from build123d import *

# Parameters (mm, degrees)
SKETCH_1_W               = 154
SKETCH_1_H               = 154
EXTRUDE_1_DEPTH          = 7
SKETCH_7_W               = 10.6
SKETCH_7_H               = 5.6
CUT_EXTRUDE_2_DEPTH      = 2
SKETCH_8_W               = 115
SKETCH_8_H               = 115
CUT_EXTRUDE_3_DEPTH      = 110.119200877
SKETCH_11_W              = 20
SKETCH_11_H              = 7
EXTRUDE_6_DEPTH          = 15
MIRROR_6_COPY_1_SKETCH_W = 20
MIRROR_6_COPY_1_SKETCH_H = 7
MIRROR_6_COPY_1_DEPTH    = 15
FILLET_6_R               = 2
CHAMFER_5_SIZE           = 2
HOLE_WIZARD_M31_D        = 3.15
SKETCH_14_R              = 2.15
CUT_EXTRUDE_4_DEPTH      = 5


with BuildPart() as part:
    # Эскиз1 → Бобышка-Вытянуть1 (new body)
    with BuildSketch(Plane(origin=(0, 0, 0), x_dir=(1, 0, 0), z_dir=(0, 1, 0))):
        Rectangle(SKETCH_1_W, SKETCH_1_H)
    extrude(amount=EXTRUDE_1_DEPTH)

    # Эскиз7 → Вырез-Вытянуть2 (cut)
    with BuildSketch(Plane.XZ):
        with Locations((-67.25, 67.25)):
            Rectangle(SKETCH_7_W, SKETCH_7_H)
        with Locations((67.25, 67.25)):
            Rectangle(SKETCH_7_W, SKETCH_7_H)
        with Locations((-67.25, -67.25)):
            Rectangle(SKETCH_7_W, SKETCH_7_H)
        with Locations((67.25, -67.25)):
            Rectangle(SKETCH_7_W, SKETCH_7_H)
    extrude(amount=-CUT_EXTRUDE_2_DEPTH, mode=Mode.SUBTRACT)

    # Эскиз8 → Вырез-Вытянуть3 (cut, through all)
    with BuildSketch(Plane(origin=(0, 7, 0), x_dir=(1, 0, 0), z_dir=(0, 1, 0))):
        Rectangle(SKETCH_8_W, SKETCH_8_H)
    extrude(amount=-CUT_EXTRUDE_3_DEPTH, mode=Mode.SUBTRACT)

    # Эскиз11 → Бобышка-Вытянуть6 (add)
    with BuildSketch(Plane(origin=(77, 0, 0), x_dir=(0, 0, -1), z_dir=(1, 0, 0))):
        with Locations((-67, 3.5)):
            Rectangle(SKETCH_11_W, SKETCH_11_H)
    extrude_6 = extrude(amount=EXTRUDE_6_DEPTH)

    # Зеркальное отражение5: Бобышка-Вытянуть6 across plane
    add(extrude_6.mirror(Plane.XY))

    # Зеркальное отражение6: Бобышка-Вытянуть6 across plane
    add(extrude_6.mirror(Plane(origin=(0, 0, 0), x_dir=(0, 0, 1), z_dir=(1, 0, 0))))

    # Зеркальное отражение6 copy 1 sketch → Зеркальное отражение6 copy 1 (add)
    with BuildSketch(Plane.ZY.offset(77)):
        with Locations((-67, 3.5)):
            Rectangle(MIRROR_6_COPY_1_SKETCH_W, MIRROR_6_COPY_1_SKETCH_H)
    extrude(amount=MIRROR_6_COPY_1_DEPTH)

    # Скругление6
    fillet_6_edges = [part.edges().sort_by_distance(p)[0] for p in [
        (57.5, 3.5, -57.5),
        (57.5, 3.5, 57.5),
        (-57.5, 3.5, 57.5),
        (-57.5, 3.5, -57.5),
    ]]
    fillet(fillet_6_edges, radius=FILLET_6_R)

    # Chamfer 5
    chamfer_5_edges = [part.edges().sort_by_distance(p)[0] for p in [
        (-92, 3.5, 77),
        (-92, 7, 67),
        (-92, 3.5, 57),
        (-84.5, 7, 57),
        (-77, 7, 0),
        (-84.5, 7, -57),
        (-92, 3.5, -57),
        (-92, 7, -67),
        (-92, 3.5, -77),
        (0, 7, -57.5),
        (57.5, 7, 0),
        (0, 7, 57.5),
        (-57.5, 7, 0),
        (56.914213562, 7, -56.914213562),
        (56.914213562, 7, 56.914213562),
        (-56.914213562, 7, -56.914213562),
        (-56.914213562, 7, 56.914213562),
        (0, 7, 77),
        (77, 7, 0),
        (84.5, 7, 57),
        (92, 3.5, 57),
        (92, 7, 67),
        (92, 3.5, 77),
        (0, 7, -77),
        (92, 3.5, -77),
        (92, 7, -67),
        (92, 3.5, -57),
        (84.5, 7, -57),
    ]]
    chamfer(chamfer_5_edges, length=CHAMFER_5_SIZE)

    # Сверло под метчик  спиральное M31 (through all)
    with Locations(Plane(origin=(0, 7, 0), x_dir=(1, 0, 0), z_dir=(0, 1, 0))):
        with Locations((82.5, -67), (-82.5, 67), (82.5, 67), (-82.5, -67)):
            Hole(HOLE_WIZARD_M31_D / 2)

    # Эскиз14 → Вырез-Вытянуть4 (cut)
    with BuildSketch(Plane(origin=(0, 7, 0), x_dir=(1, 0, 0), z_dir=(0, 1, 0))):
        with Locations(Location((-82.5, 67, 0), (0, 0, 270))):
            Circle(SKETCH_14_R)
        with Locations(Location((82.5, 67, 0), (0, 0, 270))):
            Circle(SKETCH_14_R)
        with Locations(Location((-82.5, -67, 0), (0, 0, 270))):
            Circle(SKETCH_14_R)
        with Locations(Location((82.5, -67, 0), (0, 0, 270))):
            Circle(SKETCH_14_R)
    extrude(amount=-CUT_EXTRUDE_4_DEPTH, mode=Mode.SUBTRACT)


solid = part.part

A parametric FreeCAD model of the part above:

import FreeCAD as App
import Part
import Sketcher

V = App.Vector


def edges_at(feature, points):
    """Names of the edges that pass closest to the given points."""
    edges = feature.Shape.Edges
    near = lambda p: min(range(len(edges)), key=lambda i: edges[i].distToShape(Part.Vertex(*p))[0])
    return sorted({f"Edge{near(p) + 1}" for p in points})

doc = App.newDocument("Part")
body = doc.addObject("PartDesign::Body", "Body")

sketch1 = body.newObject("Sketcher::SketchObject", "Sketch")
sketch1.AttachmentSupport = (doc.getObject("XZ_Plane"), [""])
sketch1.MapMode = "FlatFace"
sketch1.addGeometry(Part.LineSegment(V(-77, -77, 0), V(-77, 77, 0)), False)
sketch1.addGeometry(Part.LineSegment(V(-77, 77, 0), V(77, 77, 0)), False)
sketch1.addGeometry(Part.LineSegment(V(77, 77, 0), V(77, -77, 0)), False)
sketch1.addGeometry(Part.LineSegment(V(77, -77, 0), V(-77, -77, 0)), False)
sketch1.addConstraint(Sketcher.Constraint("Coincident", 0, 2, 1, 1))
sketch1.addConstraint(Sketcher.Constraint("Coincident", 1, 2, 2, 1))
sketch1.addConstraint(Sketcher.Constraint("Coincident", 2, 2, 3, 1))
sketch1.addConstraint(Sketcher.Constraint("Coincident", 3, 2, 0, 1))
sketch1.addConstraint(Sketcher.Constraint("Vertical", 0))
sketch1.addConstraint(Sketcher.Constraint("Horizontal", 1))
sketch1.addConstraint(Sketcher.Constraint("Vertical", 2))
sketch1.addConstraint(Sketcher.Constraint("Horizontal", 3))
sketch1.addConstraint(Sketcher.Constraint("Symmetric", 0, 2, 2, 2, -1, 1))
sketch1.addConstraint(Sketcher.Constraint("Equal", 3, 0))
sketch1.addConstraint(Sketcher.Constraint("DistanceX", 1, 1, 1, 2, 154.0))
pad1 = body.newObject("PartDesign::Pad", "Pad")
pad1.Profile = sketch1
pad1.Length = 7
pad1.Reversed = True

sketch2 = body.newObject("Sketcher::SketchObject", "Sketch001")
sketch2.AttachmentSupport = (doc.getObject("XZ_Plane"), [""])
sketch2.MapMode = "FlatFace"
sketch2.addGeometry(Part.LineSegment(V(-73, 70, 0), V(-73, 64, 0)), False)
sketch2.addGeometry(Part.LineSegment(V(-73, 64, 0), V(-62, 64, 0)), False)
sketch2.addGeometry(Part.LineSegment(V(-62, 64, 0), V(-62, 70, 0)), False)
sketch2.addGeometry(Part.LineSegment(V(-62, 70, 0), V(-73, 70, 0)), False)
sketch2.addGeometry(Part.LineSegment(V(62, 70, 0), V(62, 64, 0)), False)
sketch2.addGeometry(Part.LineSegment(V(62, 64, 0), V(73, 64, 0)), False)
sketch2.addGeometry(Part.LineSegment(V(73, 64, 0), V(73, 70, 0)), False)
sketch2.addGeometry(Part.LineSegment(V(73, 70, 0), V(62, 70, 0)), False)
sketch2.addGeometry(Part.LineSegment(V(-73, -64, 0), V(-73, -70, 0)), False)
sketch2.addGeometry(Part.LineSegment(V(-73, -70, 0), V(-62, -70, 0)), False)
sketch2.addGeometry(Part.LineSegment(V(-62, -70, 0), V(-62, -64, 0)), False)
sketch2.addGeometry(Part.LineSegment(V(-62, -64, 0), V(-73, -64, 0)), False)
sketch2.addGeometry(Part.LineSegment(V(62, -64, 0), V(62, -70, 0)), False)
sketch2.addGeometry(Part.LineSegment(V(62, -70, 0), V(73, -70, 0)), False)
sketch2.addGeometry(Part.LineSegment(V(73, -70, 0), V(73, -64, 0)), False)
sketch2.addGeometry(Part.LineSegment(V(73, -64, 0), V(62, -64, 0)), False)
sketch2.addConstraint(Sketcher.Constraint("Coincident", 0, 2, 1, 1))
sketch2.addConstraint(Sketcher.Constraint("Coincident", 1, 2, 2, 1))
sketch2.addConstraint(Sketcher.Constraint("Coincident", 2, 2, 3, 1))
sketch2.addConstraint(Sketcher.Constraint("Coincident", 3, 2, 0, 1))
sketch2.addConstraint(Sketcher.Constraint("Coincident", 4, 2, 5, 1))
sketch2.addConstraint(Sketcher.Constraint("Coincident", 5, 2, 6, 1))
sketch2.addConstraint(Sketcher.Constraint("Coincident", 6, 2, 7, 1))
sketch2.addConstraint(Sketcher.Constraint("Coincident", 7, 2, 4, 1))
sketch2.addConstraint(Sketcher.Constraint("Coincident", 8, 2, 9, 1))
sketch2.addConstraint(Sketcher.Constraint("Coincident", 9, 2, 10, 1))
sketch2.addConstraint(Sketcher.Constraint("Coincident", 10, 2, 11, 1))
sketch2.addConstraint(Sketcher.Constraint("Coincident", 11, 2, 8, 1))
sketch2.addConstraint(Sketcher.Constraint("Coincident", 12, 2, 13, 1))
sketch2.addConstraint(Sketcher.Constraint("Coincident", 13, 2, 14, 1))
sketch2.addConstraint(Sketcher.Constraint("Coincident", 14, 2, 15, 1))
sketch2.addConstraint(Sketcher.Constraint("Coincident", 15, 2, 12, 1))
sketch2.addConstraint(Sketcher.Constraint("Vertical", 0))
sketch2.addConstraint(Sketcher.Constraint("Horizontal", 1))
sketch2.addConstraint(Sketcher.Constraint("Vertical", 2))
sketch2.addConstraint(Sketcher.Constraint("Horizontal", 3))
sketch2.addConstraint(Sketcher.Constraint("Vertical", 4))
sketch2.addConstraint(Sketcher.Constraint("Horizontal", 5))
sketch2.addConstraint(Sketcher.Constraint("Vertical", 6))
sketch2.addConstraint(Sketcher.Constraint("Horizontal", 7))
sketch2.addConstraint(Sketcher.Constraint("Vertical", 8))
sketch2.addConstraint(Sketcher.Constraint("Horizontal", 9))
sketch2.addConstraint(Sketcher.Constraint("Vertical", 10))
sketch2.addConstraint(Sketcher.Constraint("Horizontal", 11))
sketch2.addConstraint(Sketcher.Constraint("Vertical", 12))
sketch2.addConstraint(Sketcher.Constraint("Horizontal", 13))
sketch2.addConstraint(Sketcher.Constraint("Vertical", 14))
sketch2.addConstraint(Sketcher.Constraint("Horizontal", 15))
sketch2.addConstraint(Sketcher.Constraint("Symmetric", 6, 2, 8, 2, -1, 1))
sketch2.addConstraint(Sketcher.Constraint("Symmetric", 4, 2, 10, 2, -1, 1))
sketch2.addConstraint(Sketcher.Constraint("Symmetric", 2, 2, 12, 2, -1, 1))
sketch2.addConstraint(Sketcher.Constraint("Symmetric", 0, 2, 14, 2, -1, 1))
sketch2.addConstraint(Sketcher.Constraint("Symmetric", 1, 2, 4, 2, -2))
sketch2.addConstraint(Sketcher.Constraint("Symmetric", 3, 2, 6, 2, -2))
sketch2.addConstraint(Sketcher.Constraint("DistanceX", 1, 1, 1, 2, 10.6))
sketch2.addConstraint(Sketcher.Constraint("DistanceY", 0, 2, 0, 1, 5.6))
sketch2.addConstraint(Sketcher.Constraint("DistanceX", 1, 2, 4, 2, 123.9))
sketch2.addConstraint(Sketcher.Constraint("DistanceY", 8, 2, 0, 2, 134.5))
pocket1 = body.newObject("PartDesign::Pocket", "Pocket")
pocket1.Profile = sketch2
pocket1.Length = 2

sketch3 = body.newObject("Sketcher::SketchObject", "Sketch002")
sketch3.AttachmentSupport = (doc.getObject("XZ_Plane"), [""])
sketch3.MapMode = "FlatFace"
sketch3.AttachmentOffset = App.Placement(V(0, 0, -7), App.Rotation())
sketch3.addGeometry(Part.LineSegment(V(-58, -58, 0), V(-58, 58, 0)), False)
sketch3.addGeometry(Part.LineSegment(V(-58, 58, 0), V(58, 58, 0)), False)
sketch3.addGeometry(Part.LineSegment(V(58, 58, 0), V(58, -58, 0)), False)
sketch3.addGeometry(Part.LineSegment(V(58, -58, 0), V(-58, -58, 0)), False)
sketch3.addConstraint(Sketcher.Constraint("Coincident", 0, 2, 1, 1))
sketch3.addConstraint(Sketcher.Constraint("Coincident", 1, 2, 2, 1))
sketch3.addConstraint(Sketcher.Constraint("Coincident", 2, 2, 3, 1))
sketch3.addConstraint(Sketcher.Constraint("Coincident", 3, 2, 0, 1))
sketch3.addConstraint(Sketcher.Constraint("Vertical", 0))
sketch3.addConstraint(Sketcher.Constraint("Horizontal", 1))
sketch3.addConstraint(Sketcher.Constraint("Vertical", 2))
sketch3.addConstraint(Sketcher.Constraint("Horizontal", 3))
sketch3.addConstraint(Sketcher.Constraint("Symmetric", 0, 2, 2, 2, -1, 1))
sketch3.addConstraint(Sketcher.Constraint("Equal", 3, 0))
sketch3.addConstraint(Sketcher.Constraint("DistanceX", 1, 1, 1, 2, 115.0))
pocket2 = body.newObject("PartDesign::Pocket", "Pocket001")
pocket2.Profile = sketch3
pocket2.Type = "ThroughAll"
pocket2.Reversed = True

sketch4 = body.newObject("Sketcher::SketchObject", "Sketch003")
sketch4.AttachmentSupport = (doc.getObject("YZ_Plane"), [""])
sketch4.MapMode = "FlatFace"
sketch4.AttachmentOffset = App.Placement(V(0, 0, 77), App.Rotation())
sketch4.addGeometry(Part.LineSegment(V(7, 77, 0), V(0, 77, 0)), False)
sketch4.addGeometry(Part.LineSegment(V(0, 77, 0), V(0, 57, 0)), False)
sketch4.addGeometry(Part.LineSegment(V(0, 57, 0), V(7, 57, 0)), False)
sketch4.addGeometry(Part.LineSegment(V(7, 57, 0), V(7, 77, 0)), False)
sketch4.addConstraint(Sketcher.Constraint("Coincident", 0, 2, 1, 1))
sketch4.addConstraint(Sketcher.Constraint("Coincident", 1, 2, 2, 1))
sketch4.addConstraint(Sketcher.Constraint("Coincident", 2, 2, 3, 1))
sketch4.addConstraint(Sketcher.Constraint("Coincident", 3, 2, 0, 1))
sketch4.addConstraint(Sketcher.Constraint("Horizontal", 0))
sketch4.addConstraint(Sketcher.Constraint("Vertical", 1))
sketch4.addConstraint(Sketcher.Constraint("Horizontal", 2))
sketch4.addConstraint(Sketcher.Constraint("Vertical", 3))
sketch4.addConstraint(Sketcher.Constraint("PointOnObject", 0, 2, -2))
sketch4.addConstraint(Sketcher.Constraint("DistanceX", 0, 2, 0, 1, 7.0))
sketch4.addConstraint(Sketcher.Constraint("DistanceY", 1, 2, 1, 1, 20.0))
sketch4.addConstraint(Sketcher.Constraint("DistanceY", -1, 1, 0, 2, 77.0))
pad2 = body.newObject("PartDesign::Pad", "Pad001")
pad2.Profile = sketch4
pad2.Length = 15
doc.recompute()

mirrored = body.newObject("PartDesign::Mirrored", "Mirrored")
mirrored.Originals = [pad2]
mirrored.MirrorPlane = (doc.getObject("XY_Plane"), [""])
body.Tip = mirrored
doc.recompute()

mirrored2 = body.newObject("PartDesign::Mirrored", "Mirrored001")
mirrored2.Originals = [pad2]
mirrored2.MirrorPlane = (doc.getObject("YZ_Plane"), [""])
body.Tip = mirrored2

sketch5 = body.newObject("Sketcher::SketchObject", "Sketch004")
sketch5.AttachmentSupport = (doc.getObject("YZ_Plane"), [""])
sketch5.MapMode = "FlatFace"
sketch5.AttachmentOffset = App.Placement(V(0, 0, -77), App.Rotation())
sketch5.addGeometry(Part.LineSegment(V(7, -77, 0), V(0, -77, 0)), False)
sketch5.addGeometry(Part.LineSegment(V(0, -77, 0), V(0, -57, 0)), False)
sketch5.addGeometry(Part.LineSegment(V(0, -57, 0), V(7, -57, 0)), False)
sketch5.addGeometry(Part.LineSegment(V(7, -57, 0), V(7, -77, 0)), False)
sketch5.addConstraint(Sketcher.Constraint("Coincident", 0, 2, 1, 1))
sketch5.addConstraint(Sketcher.Constraint("Coincident", 1, 2, 2, 1))
sketch5.addConstraint(Sketcher.Constraint("Coincident", 2, 2, 3, 1))
sketch5.addConstraint(Sketcher.Constraint("Coincident", 3, 2, 0, 1))
sketch5.addConstraint(Sketcher.Constraint("Horizontal", 0))
sketch5.addConstraint(Sketcher.Constraint("Vertical", 1))
sketch5.addConstraint(Sketcher.Constraint("Horizontal", 2))
sketch5.addConstraint(Sketcher.Constraint("Vertical", 3))
sketch5.addConstraint(Sketcher.Constraint("PointOnObject", 0, 2, -2))
sketch5.addConstraint(Sketcher.Constraint("DistanceX", 0, 2, 0, 1, 7.0))
sketch5.addConstraint(Sketcher.Constraint("DistanceY", 1, 1, 1, 2, 20.0))
sketch5.addConstraint(Sketcher.Constraint("DistanceY", 0, 2, -1, 1, 77.0))
pad3 = body.newObject("PartDesign::Pad", "Pad002")
pad3.Profile = sketch5
pad3.Length = 15
pad3.Reversed = True
doc.recompute()

fillet = body.newObject("PartDesign::Fillet", "Fillet")
fillet.Base = (pad3, edges_at(pad3, [
    (57.5, 3.5, -57.5),
    (57.5, 3.5, 57.5),
    (-57.5, 3.5, 57.5),
    (-57.5, 3.5, -57.5),
]))
fillet.Radius = 2
doc.recompute()

chamfer = body.newObject("PartDesign::Chamfer", "Chamfer")
chamfer.Base = (fillet, edges_at(fillet, [
    (-92, 3.5, 77),
    (-92, 7, 67),
    (-92, 3.5, 57),
    (-84.5, 7, 57),
    (-77, 7, 0),
    (-84.5, 7, -57),
    (-92, 3.5, -57),
    (-92, 7, -67),
    (-92, 3.5, -77),
    (0, 7, -57.5),
    (57.5, 7, 0),
    (0, 7, 57.5),
    (-57.5, 7, 0),
    (56.914, 7, -56.914),
    (56.914, 7, 56.914),
    (-56.914, 7, -56.914),
    (-56.914, 7, 56.914),
    (0, 7, 77),
    (77, 7, 0),
    (84.5, 7, 57),
    (92, 3.5, 57),
    (92, 7, 67),
    (92, 3.5, 77),
    (0, 7, -77),
    (92, 3.5, -77),
    (92, 7, -67),
    (92, 3.5, -57),
    (84.5, 7, -57),
]))
chamfer.Size = 2

sketch6 = body.newObject("Sketcher::SketchObject", "Sketch005")
sketch6.AttachmentSupport = (doc.getObject("XZ_Plane"), [""])
sketch6.MapMode = "FlatFace"
sketch6.AttachmentOffset = App.Placement(V(0, 0, -7), App.Rotation())
sketch6.addGeometry(Part.Circle(V(82.5, 67, 0), V(0, 0, 1), 1.6), False)
sketch6.addGeometry(Part.Circle(V(-82.5, -67, 0), V(0, 0, 1), 1.6), False)
sketch6.addGeometry(Part.Circle(V(82.5, -67, 0), V(0, 0, 1), 1.6), False)
sketch6.addGeometry(Part.Circle(V(-82.5, 67, 0), V(0, 0, 1), 1.6), False)
sketch6.addConstraint(Sketcher.Constraint("Equal", 0, 1))
sketch6.addConstraint(Sketcher.Constraint("Equal", 1, 2))
sketch6.addConstraint(Sketcher.Constraint("Equal", 2, 3))
sketch6.addConstraint(Sketcher.Constraint("Symmetric", 0, 3, 1, 3, -1, 1))
sketch6.addConstraint(Sketcher.Constraint("Symmetric", 2, 3, 3, 3, -1, 1))
sketch6.addConstraint(Sketcher.Constraint("Symmetric", 1, 3, 2, 3, -2))
sketch6.addConstraint(Sketcher.Constraint("Diameter", 0, 3.15))
sketch6.addConstraint(Sketcher.Constraint("DistanceY", -1, 1, 0, 3, 67.0))
sketch6.addConstraint(Sketcher.Constraint("DistanceX", 1, 3, 0, 3, 165.0))
doc.recompute()
hole = body.newObject("PartDesign::Hole", "Hole")
hole.Profile = sketch6
hole.ThreadType = "None"
hole.Diameter = 3.15
hole.DepthType = "ThroughAll"
hole.Reversed = True

sketch7 = body.newObject("Sketcher::SketchObject", "Sketch006")
sketch7.AttachmentSupport = (doc.getObject("XZ_Plane"), [""])
sketch7.MapMode = "FlatFace"
sketch7.AttachmentOffset = App.Placement(V(0, 0, -7), App.Rotation())
sketch7.addGeometry(Part.Circle(V(-82.5, -67, 0), V(0, 0, 1), 2.1), False)
sketch7.addGeometry(Part.Circle(V(82.5, -67, 0), V(0, 0, 1), 2.1), False)
sketch7.addGeometry(Part.Circle(V(-82.5, 67, 0), V(0, 0, 1), 2.1), False)
sketch7.addGeometry(Part.Circle(V(82.5, 67, 0), V(0, 0, 1), 2.1), False)
sketch7.addConstraint(Sketcher.Constraint("Equal", 0, 1))
sketch7.addConstraint(Sketcher.Constraint("Equal", 1, 2))
sketch7.addConstraint(Sketcher.Constraint("Equal", 2, 3))
sketch7.addConstraint(Sketcher.Constraint("Symmetric", 1, 3, 2, 3, -1, 1))
sketch7.addConstraint(Sketcher.Constraint("Symmetric", 0, 3, 3, 3, -1, 1))
sketch7.addConstraint(Sketcher.Constraint("Symmetric", 0, 3, 1, 3, -2))
sketch7.addConstraint(Sketcher.Constraint("Diameter", 0, 4.3))
sketch7.addConstraint(Sketcher.Constraint("DistanceY", 0, 3, -1, 1, 67.0))
sketch7.addConstraint(Sketcher.Constraint("DistanceX", 0, 3, 1, 3, 165.0))
pocket3 = body.newObject("PartDesign::Pocket", "Pocket002")
pocket3.Profile = sketch7
pocket3.Length = 5
pocket3.Reversed = True

doc.recompute()
